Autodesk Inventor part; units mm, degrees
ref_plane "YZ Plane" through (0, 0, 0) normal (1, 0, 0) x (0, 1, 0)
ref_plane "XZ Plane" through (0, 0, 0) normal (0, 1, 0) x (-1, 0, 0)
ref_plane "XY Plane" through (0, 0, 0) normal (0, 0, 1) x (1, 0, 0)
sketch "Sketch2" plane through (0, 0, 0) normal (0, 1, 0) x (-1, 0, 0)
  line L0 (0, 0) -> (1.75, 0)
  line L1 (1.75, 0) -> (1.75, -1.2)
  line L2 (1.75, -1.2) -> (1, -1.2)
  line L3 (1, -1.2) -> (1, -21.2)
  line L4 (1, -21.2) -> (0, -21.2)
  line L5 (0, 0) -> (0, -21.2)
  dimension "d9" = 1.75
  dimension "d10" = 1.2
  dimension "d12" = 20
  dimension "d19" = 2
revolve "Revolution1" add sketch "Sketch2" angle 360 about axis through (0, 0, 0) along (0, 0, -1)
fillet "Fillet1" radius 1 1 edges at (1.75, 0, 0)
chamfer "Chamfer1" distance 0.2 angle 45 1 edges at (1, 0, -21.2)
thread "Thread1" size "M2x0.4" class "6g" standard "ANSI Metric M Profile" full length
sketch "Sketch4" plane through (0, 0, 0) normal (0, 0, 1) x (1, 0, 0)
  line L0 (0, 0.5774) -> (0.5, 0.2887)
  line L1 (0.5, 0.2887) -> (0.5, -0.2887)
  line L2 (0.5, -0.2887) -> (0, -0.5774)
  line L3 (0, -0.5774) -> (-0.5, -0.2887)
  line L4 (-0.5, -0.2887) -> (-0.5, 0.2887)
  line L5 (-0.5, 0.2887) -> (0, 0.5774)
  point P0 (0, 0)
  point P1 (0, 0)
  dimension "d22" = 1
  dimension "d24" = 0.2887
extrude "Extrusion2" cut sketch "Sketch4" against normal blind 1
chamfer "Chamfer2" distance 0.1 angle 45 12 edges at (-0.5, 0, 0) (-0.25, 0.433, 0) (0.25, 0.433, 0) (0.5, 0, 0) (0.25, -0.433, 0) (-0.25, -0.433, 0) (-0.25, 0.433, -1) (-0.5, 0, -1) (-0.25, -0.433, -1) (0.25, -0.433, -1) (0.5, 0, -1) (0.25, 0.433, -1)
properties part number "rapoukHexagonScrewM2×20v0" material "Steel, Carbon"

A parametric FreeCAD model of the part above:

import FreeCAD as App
import Part
import Sketcher
from FreeCAD import Vector
Q = App.Units.Quantity


def edges_at(feature, points):
    """Names of the edges that pass closest to the given points."""
    edges = feature.Shape.Edges
    near = lambda p: min(range(len(edges)), key=lambda i: edges[i].distToShape(Part.Vertex(*p))[0])
    return sorted({f"Edge{near(p) + 1}" for p in points})

doc = App.newDocument("Part")
body = doc.addObject("PartDesign::Body", "Body")

# Sketch on XZ plane
sketch1 = doc.addObject("Sketcher::SketchObject", "Sketch")
body.addObject(sketch1)
sketch1.AttachmentSupport = (doc.XZ_Plane, [""])
sketch1.MapMode = "FlatFace"
sketch1.addGeometry([
    Part.LineSegment(Vector(-1.8, 0, 0), Vector(0, 0, 0)),  # 0
    Part.LineSegment(Vector(0, 0, 0), Vector(0, -21.2, 0)),  # 1
    Part.LineSegment(Vector(0, -21.2, 0), Vector(-1, -21.2, 0)),  # 2
    Part.LineSegment(Vector(-1, -21.2, 0), Vector(-1, -1.2, 0)),  # 3
    Part.LineSegment(Vector(-1, -1.2, 0), Vector(-1.8, -1.2, 0)),  # 4
    Part.LineSegment(Vector(-1.8, -1.2, 0), Vector(-1.8, 0, 0)),  # 5
], False)
sketch1.addConstraint([
    Sketcher.Constraint("Coincident", 0, 2, 1, 1),
    Sketcher.Constraint("Coincident", 1, 2, 2, 1),
    Sketcher.Constraint("Coincident", 2, 2, 3, 1),
    Sketcher.Constraint("Coincident", 3, 2, 4, 1),
    Sketcher.Constraint("Coincident", 4, 2, 5, 1),
    Sketcher.Constraint("Coincident", 5, 2, 0, 1),
    Sketcher.Constraint("Horizontal", 0),
    Sketcher.Constraint("Vertical", 1),
    Sketcher.Constraint("Horizontal", 2),
    Sketcher.Constraint("Vertical", 3),
    Sketcher.Constraint("Horizontal", 4),
    Sketcher.Constraint("Vertical", 5),
    Sketcher.Constraint("Coincident", 0, 2, -1, 1),
    Sketcher.Constraint("DistanceY", 3, 1, 3, 2, Q("20 mm")),
    Sketcher.Constraint("DistanceY", 5, 1, 5, 2, Q("1.2 mm")),
    Sketcher.Constraint("DistanceX", 0, 1, 0, 2, Q("1.75 mm")),
    Sketcher.Constraint("DistanceX", 2, 2, 2, 1, Q("1 mm")),
])
revolution = doc.addObject("PartDesign::Revolution", "Revolution")
body.addObject(revolution)
revolution.Profile = sketch1
revolution.ReferenceAxis = (sketch1, ["V_Axis"])
revolution.Angle = 360
doc.recompute()

fillet = doc.addObject("PartDesign::Fillet", "Fillet")
body.addObject(fillet)
fillet.Base = (revolution, edges_at(revolution, [(1.75, 0, 0)]))
fillet.Radius = 1
doc.recompute()

chamfer = doc.addObject("PartDesign::Chamfer", "Chamfer")
body.addObject(chamfer)
chamfer.Base = (fillet, edges_at(fillet, [(1, 0, -21.2)]))
chamfer.Size = 0.2

# Sketch on XY plane
sketch2 = doc.addObject("Sketcher::SketchObject", "Sketch001")
body.addObject(sketch2)
sketch2.AttachmentSupport = (doc.XY_Plane, [""])
sketch2.MapMode = "FlatFace"
sketch2.addGeometry([
    Part.LineSegment(Vector(0.5, 0.3, 0), Vector(0, 0.6, 0)),  # 0
    Part.LineSegment(Vector(0, 0.6, 0), Vector(-0.5, 0.3, 0)),  # 1
    Part.LineSegment(Vector(-0.5, 0.3, 0), Vector(-0.5, -0.3, 0)),  # 2
    Part.LineSegment(Vector(-0.5, -0.3, 0), Vector(0, -0.6, 0)),  # 3
    Part.LineSegment(Vector(0, -0.6, 0), Vector(0.5, -0.3, 0)),  # 4
    Part.LineSegment(Vector(0.5, -0.3, 0), Vector(0.5, 0.3, 0)),  # 5
], False)
sketch2.addConstraint([
    Sketcher.Constraint("Coincident", 0, 2, 1, 1),
    Sketcher.Constraint("Coincident", 1, 2, 2, 1),
    Sketcher.Constraint("Coincident", 2, 2, 3, 1),
    Sketcher.Constraint("Coincident", 3, 2, 4, 1),
    Sketcher.Constraint("Coincident", 4, 2, 5, 1),
    Sketcher.Constraint("Coincident", 5, 2, 0, 1),
    Sketcher.Constraint("Vertical", 2),
    Sketcher.Constraint("Vertical", 5),
    Sketcher.Constraint("Symmetric", 0, 2, 3, 2, -1, 1),
    Sketcher.Constraint("Symmetric", 1, 2, 4, 2, -1, 1),
    Sketcher.Constraint("PointOnObject", 0, 2, -2),
    Sketcher.Constraint("Parallel", 0, 3),
    Sketcher.Constraint("Horizontal", 2, 2, 4, 2),
    Sketcher.Constraint("DistanceX", 2, 2, 4, 2, Q("1 mm")),
    Sketcher.Constraint("DistanceY", -1, 1, 1, 2, Q("0.2887 mm")),
    Sketcher.Constraint("DistanceY", 1, 2, 0, 2, Q("0.2887 mm")),
])
pocket1 = doc.addObject("PartDesign::Pocket", "Pocket")
body.addObject(pocket1)
pocket1.Profile = sketch2
pocket1.Length = 1
doc.recompute()

chamfer2 = doc.addObject("PartDesign::Chamfer", "Chamfer001")
body.addObject(chamfer2)
chamfer2.Base = (pocket1, edges_at(pocket1, [
    (-0.5, 0, 0),
    (-0.25, 0.433, 0),
    (0.25, 0.433, 0),
    (0.5, 0, 0),
    (0.25, -0.433, 0),
    (-0.25, -0.433, 0),
    (-0.25, 0.433, -1),
    (-0.5, 0, -1),
    (-0.25, -0.433, -1),
    (0.25, -0.433, -1),
    (0.5, 0, -1),
    (0.25, 0.433, -1),
]))
chamfer2.Size = 0.1

doc.recompute()
